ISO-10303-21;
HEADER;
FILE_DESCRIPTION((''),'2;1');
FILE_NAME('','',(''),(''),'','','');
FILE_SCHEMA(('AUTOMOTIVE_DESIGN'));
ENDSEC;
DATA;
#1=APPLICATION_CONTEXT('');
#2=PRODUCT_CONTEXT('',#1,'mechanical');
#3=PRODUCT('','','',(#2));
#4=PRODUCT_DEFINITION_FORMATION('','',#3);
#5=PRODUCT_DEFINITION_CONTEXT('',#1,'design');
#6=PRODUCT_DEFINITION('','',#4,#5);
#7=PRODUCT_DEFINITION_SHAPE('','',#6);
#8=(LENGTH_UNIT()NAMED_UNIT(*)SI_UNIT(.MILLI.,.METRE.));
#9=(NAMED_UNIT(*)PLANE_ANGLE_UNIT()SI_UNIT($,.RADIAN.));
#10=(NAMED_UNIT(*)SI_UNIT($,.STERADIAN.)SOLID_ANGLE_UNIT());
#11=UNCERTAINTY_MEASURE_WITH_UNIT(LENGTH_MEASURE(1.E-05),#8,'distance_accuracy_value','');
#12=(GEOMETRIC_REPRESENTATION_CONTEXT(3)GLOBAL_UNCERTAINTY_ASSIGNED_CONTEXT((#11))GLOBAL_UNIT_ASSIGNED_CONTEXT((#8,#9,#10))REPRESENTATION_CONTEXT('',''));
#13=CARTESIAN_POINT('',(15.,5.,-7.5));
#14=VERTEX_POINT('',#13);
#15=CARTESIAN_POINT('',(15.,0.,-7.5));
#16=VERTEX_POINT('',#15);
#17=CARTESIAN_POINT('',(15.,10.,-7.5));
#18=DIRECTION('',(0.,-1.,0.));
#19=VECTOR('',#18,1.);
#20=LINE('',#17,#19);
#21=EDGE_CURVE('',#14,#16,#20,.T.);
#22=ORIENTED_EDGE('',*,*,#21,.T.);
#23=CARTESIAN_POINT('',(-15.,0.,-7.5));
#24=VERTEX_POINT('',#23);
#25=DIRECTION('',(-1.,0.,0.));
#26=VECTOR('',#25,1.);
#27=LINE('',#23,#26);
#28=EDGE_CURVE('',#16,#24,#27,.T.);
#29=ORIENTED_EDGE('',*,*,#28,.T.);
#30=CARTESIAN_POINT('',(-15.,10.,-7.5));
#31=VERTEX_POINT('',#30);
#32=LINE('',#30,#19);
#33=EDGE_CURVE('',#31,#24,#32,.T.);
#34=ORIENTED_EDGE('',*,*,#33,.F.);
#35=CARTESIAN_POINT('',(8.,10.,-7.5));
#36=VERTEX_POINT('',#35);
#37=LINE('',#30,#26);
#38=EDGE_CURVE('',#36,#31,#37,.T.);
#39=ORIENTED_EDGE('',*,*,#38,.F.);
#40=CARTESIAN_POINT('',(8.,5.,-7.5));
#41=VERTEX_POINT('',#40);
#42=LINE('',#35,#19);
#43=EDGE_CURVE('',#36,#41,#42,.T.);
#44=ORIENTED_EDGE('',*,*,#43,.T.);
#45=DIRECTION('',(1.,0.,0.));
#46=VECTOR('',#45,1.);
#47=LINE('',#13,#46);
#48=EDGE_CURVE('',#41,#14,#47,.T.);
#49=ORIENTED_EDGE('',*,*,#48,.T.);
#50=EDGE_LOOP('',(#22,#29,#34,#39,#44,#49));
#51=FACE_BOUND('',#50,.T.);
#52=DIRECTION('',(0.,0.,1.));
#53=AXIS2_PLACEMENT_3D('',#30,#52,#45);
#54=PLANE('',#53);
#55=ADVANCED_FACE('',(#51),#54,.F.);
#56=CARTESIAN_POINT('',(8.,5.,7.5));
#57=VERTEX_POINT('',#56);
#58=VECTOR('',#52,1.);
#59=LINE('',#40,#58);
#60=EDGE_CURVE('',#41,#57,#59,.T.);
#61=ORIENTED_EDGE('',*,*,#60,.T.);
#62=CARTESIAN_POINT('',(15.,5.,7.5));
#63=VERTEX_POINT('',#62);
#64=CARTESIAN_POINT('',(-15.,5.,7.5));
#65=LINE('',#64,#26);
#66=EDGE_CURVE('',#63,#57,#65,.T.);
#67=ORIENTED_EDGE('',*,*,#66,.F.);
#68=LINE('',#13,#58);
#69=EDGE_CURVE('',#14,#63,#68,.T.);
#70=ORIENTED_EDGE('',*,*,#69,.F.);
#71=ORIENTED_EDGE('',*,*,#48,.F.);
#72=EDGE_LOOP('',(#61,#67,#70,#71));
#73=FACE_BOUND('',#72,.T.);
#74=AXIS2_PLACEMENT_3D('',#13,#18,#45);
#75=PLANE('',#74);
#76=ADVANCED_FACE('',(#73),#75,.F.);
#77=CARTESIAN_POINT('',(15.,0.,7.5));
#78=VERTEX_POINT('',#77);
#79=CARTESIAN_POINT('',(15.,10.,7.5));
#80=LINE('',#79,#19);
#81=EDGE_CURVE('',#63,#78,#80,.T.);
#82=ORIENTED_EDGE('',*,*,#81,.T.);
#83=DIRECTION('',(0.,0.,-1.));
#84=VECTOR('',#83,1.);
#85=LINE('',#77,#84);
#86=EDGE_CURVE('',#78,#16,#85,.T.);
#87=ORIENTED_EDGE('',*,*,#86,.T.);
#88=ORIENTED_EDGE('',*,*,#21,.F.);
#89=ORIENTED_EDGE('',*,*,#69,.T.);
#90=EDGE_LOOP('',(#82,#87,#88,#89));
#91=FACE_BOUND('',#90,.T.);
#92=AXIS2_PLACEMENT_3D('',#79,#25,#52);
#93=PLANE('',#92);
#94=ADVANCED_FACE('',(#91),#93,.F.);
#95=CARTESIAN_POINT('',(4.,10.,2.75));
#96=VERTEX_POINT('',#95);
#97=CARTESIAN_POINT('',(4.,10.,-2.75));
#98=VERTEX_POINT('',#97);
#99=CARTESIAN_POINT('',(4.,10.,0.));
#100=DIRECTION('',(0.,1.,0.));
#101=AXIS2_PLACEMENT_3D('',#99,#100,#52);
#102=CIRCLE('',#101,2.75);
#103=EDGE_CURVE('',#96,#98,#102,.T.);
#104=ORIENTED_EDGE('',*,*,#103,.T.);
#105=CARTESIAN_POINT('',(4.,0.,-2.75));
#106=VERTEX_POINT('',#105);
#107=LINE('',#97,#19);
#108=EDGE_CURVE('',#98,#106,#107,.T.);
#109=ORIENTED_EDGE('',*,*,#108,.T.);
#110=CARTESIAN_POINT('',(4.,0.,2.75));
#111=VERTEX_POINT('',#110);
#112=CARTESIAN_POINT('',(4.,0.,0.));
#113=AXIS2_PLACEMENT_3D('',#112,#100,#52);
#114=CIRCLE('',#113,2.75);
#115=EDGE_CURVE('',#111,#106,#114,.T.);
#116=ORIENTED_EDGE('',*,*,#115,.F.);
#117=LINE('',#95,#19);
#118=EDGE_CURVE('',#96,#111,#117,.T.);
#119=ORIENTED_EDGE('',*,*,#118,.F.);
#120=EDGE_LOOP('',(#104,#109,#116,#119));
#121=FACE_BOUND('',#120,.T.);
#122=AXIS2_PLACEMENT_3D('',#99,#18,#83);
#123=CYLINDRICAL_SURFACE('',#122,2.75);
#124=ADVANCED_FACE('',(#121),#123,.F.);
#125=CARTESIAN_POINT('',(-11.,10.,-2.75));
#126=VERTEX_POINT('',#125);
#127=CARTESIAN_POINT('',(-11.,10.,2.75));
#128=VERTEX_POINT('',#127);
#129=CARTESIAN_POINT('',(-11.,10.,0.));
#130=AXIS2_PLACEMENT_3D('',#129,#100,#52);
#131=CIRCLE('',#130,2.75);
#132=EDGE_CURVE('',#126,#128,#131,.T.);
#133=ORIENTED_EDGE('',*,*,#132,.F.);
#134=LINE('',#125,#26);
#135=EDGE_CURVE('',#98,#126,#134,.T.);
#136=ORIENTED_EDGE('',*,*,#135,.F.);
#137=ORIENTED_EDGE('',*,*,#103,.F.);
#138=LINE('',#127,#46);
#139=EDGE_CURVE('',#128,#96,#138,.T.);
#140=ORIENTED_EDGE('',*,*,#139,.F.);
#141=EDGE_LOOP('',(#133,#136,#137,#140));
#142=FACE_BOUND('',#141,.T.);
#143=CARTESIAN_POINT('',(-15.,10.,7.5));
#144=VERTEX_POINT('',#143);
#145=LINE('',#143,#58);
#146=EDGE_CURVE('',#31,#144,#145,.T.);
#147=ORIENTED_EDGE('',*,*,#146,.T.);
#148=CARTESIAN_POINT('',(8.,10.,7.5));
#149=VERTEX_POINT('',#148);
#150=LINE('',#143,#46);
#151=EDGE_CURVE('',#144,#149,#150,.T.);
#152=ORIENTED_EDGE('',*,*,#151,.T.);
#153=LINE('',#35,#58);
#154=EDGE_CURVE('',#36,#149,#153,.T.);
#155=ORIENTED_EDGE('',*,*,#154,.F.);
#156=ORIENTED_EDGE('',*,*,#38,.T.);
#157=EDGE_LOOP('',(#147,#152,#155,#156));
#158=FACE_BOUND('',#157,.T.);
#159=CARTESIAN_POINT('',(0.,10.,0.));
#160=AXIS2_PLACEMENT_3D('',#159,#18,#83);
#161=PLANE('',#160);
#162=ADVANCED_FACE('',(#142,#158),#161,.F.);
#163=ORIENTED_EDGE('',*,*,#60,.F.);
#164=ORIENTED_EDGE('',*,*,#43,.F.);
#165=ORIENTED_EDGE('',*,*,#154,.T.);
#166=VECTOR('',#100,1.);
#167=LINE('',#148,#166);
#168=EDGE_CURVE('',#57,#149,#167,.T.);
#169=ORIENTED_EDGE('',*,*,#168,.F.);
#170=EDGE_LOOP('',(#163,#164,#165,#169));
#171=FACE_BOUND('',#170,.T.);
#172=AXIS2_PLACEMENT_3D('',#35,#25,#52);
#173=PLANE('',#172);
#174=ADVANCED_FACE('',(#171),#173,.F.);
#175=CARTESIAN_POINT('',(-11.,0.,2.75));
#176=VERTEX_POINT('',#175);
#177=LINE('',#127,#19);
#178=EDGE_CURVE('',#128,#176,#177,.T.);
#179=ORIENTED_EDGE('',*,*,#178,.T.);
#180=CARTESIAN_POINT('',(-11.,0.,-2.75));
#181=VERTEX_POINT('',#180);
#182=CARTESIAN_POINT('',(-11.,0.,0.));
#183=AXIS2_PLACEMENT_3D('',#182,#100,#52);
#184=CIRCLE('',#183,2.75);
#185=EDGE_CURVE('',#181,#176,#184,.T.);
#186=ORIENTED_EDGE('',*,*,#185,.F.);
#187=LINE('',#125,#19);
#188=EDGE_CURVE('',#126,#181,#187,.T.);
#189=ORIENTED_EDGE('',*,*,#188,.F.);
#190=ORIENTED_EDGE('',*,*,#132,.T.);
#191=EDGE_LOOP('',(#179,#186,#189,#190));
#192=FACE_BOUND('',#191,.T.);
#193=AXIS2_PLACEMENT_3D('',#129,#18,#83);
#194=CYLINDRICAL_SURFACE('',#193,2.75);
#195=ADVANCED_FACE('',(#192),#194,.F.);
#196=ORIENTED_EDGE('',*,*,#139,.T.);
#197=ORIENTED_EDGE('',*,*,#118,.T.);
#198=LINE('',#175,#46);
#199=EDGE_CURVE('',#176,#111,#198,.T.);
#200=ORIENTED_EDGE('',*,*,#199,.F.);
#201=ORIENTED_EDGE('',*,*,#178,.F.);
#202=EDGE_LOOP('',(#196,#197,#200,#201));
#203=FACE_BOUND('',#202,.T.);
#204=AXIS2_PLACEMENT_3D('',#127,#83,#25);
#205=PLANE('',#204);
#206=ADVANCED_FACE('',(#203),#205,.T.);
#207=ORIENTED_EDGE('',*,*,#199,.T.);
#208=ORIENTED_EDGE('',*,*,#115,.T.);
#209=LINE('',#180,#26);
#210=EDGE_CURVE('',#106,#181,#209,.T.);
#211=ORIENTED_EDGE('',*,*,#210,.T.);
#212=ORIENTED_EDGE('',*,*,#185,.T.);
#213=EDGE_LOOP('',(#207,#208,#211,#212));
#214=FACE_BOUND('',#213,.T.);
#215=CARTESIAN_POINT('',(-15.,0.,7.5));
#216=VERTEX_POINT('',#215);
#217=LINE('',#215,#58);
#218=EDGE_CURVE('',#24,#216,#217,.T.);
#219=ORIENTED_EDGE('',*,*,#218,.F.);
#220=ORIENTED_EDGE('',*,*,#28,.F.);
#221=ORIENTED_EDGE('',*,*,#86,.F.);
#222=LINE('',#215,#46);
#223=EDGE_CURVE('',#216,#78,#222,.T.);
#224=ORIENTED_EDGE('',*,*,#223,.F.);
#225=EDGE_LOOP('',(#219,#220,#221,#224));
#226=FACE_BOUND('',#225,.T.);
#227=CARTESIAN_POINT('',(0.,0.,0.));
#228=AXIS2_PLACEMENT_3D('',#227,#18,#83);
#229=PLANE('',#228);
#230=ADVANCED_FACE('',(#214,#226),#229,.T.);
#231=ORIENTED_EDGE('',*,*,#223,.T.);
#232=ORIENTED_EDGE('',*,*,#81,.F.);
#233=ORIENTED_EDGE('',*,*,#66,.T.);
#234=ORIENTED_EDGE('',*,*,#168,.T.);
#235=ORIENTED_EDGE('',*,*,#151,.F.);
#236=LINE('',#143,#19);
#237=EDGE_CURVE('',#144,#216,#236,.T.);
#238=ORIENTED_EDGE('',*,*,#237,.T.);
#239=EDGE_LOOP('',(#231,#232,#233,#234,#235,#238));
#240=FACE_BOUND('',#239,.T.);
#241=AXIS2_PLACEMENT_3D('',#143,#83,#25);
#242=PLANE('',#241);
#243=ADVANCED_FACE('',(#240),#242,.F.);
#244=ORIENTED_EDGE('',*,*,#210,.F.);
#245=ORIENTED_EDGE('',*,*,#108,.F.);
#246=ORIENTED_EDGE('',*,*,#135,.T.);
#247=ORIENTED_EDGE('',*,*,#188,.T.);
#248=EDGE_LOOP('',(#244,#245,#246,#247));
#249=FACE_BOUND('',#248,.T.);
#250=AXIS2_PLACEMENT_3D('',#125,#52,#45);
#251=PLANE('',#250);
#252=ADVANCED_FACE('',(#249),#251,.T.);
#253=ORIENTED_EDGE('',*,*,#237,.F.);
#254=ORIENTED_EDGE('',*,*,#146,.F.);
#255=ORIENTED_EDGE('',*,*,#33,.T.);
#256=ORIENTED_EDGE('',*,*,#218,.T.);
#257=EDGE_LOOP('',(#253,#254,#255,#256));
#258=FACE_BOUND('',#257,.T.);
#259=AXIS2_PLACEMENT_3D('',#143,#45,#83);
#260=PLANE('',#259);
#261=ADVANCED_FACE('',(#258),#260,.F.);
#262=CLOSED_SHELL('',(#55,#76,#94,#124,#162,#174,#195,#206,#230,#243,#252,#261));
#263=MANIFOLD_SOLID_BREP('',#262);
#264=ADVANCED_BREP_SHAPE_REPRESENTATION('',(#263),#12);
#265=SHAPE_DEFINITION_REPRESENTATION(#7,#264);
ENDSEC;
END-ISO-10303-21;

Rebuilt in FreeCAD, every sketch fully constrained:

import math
import FreeCAD as App
import Part
import Sketcher

V = App.Vector
Q = App.Units.Quantity

doc = App.newDocument("Part")
params = doc.addObject("Spreadsheet::Sheet", "Params")
for row, (alias, value) in enumerate([
    ("sketch1_width", "30 mm"),
    ("sketch1_width2", "15 mm"),
    ("sketch1_radius", "2.75 mm"),
    ("pad1_length", "10 mm"),
    ("sketch2_width", "7 mm"),
    ("sketch2_height", "5 mm"),
], start=1):
    params.set(f"A{row}", alias)
    params.set(f"B{row}", "=" + value)
    params.setAlias(f"B{row}", alias)

body = doc.addObject("PartDesign::Body", "Body")

sketch1 = body.newObject("Sketcher::SketchObject", "Sketch")
sketch1.AttachmentSupport = (doc.getObject("XZ_Plane"), [""])
sketch1.MapMode = "FlatFace"
sketch1.addGeometry([
    Part.LineSegment(V(-15, -7.5, 0), V(-15, 7.5, 0)),
    Part.LineSegment(V(-15, 7.5, 0), V(15, 7.5, 0)),
    Part.LineSegment(V(15, 7.5, 0), V(15, -7.5, 0)),
    Part.LineSegment(V(15, -7.5, 0), V(-15, -7.5, 0)),
    Part.ArcOfCircle(Part.Circle(V(-11, 0, 0), V(0, 0, 1), 2.8), math.radians(90), math.radians(270)),
    Part.LineSegment(V(-11, -2.8, 0), V(4, -2.8, 0)),
    Part.ArcOfCircle(Part.Circle(V(4, 0, 0), V(0, 0, 1), 2.8), math.radians(-90), math.radians(90)),
    Part.LineSegment(V(4, 2.8, 0), V(-11, 2.8, 0)),
], False)
sketch1.addConstraint([
    Sketcher.Constraint("Coincident", 0, 2, 1, 1),
    Sketcher.Constraint("Coincident", 1, 2, 2, 1),
    Sketcher.Constraint("Coincident", 2, 2, 3, 1),
    Sketcher.Constraint("Coincident", 3, 2, 0, 1),
    Sketcher.Constraint("Tangent", 4, 2, 5, 1),
    Sketcher.Constraint("Tangent", 5, 2, 6, 1),
    Sketcher.Constraint("Tangent", 6, 2, 7, 1),
    Sketcher.Constraint("Tangent", 7, 2, 4, 1),
    Sketcher.Constraint("Vertical", 0),
    Sketcher.Constraint("Horizontal", 1),
    Sketcher.Constraint("Vertical", 2),
    Sketcher.Constraint("Horizontal", 3),
    Sketcher.Constraint("Horizontal", 5),
    Sketcher.Constraint("Horizontal", 7),
    Sketcher.Constraint("Symmetric", 0, 2, 2, 2, -1, 1),
    Sketcher.Constraint("PointOnObject", 4, 3, -1),
    Sketcher.Constraint("Equal", 7, 0),
    Sketcher.Constraint("DistanceX", 1, 1, 1, 2, Q("30 mm")),
    Sketcher.Constraint("DistanceX", 5, 1, 5, 2, Q("15 mm")),
    Sketcher.Constraint("Radius", 4, Q("2.75 mm")),
    Sketcher.Constraint("DistanceX", 4, 3, -1, 1, Q("11 mm")),
])
sketch1.setExpression("Constraints[17]", "Params.sketch1_width")
sketch1.setExpression("Constraints[18]", "Params.sketch1_width2")
sketch1.setExpression("Constraints[19]", "Params.sketch1_radius")
pad1 = body.newObject("PartDesign::Pad", "Pad")
pad1.Profile = sketch1
pad1.setExpression("Length", "Params.pad1_length")
pad1.Reversed = True

sketch2 = body.newObject("Sketcher::SketchObject", "Sketch001")
sketch2.AttachmentSupport = (doc.getObject("XY_Plane"), [""])
sketch2.MapMode = "FlatFace"
sketch2.AttachmentOffset = App.Placement(V(0, 0, 7.5), App.Rotation())
sketch2.addGeometry([
    Part.LineSegment(V(8, 10, 0), V(8, 5, 0)),
    Part.LineSegment(V(8, 5, 0), V(15, 5, 0)),
    Part.LineSegment(V(15, 5, 0), V(15, 10, 0)),
    Part.LineSegment(V(15, 10, 0), V(8, 10, 0)),
], False)
sketch2.addConstraint([
    Sketcher.Constraint("Coincident", 0, 2, 1, 1),
    Sketcher.Constraint("Coincident", 1, 2, 2, 1),
    Sketcher.Constraint("Coincident", 2, 2, 3, 1),
    Sketcher.Constraint("Coincident", 3, 2, 0, 1),
    Sketcher.Constraint("Vertical", 0),
    Sketcher.Constraint("Horizontal", 1),
    Sketcher.Constraint("Vertical", 2),
    Sketcher.Constraint("Horizontal", 3),
    Sketcher.Constraint("DistanceX", 1, 1, 1, 2, Q("7 mm")),
    Sketcher.Constraint("DistanceY", 0, 2, 0, 1, Q("5 mm")),
    Sketcher.Constraint("DistanceX", -1, 1, 0, 2, Q("8 mm")),
    Sketcher.Constraint("DistanceY", -1, 1, 0, 2, Q("5 mm")),
])
sketch2.setExpression("Constraints[8]", "Params.sketch2_width")
sketch2.setExpression("Constraints[9]", "Params.sketch2_height")
pocket1 = body.newObject("PartDesign::Pocket", "Pocket")
pocket1.Profile = sketch2
pocket1.Type = "ThroughAll"
pocket1.Midplane = True

doc.recompute()
